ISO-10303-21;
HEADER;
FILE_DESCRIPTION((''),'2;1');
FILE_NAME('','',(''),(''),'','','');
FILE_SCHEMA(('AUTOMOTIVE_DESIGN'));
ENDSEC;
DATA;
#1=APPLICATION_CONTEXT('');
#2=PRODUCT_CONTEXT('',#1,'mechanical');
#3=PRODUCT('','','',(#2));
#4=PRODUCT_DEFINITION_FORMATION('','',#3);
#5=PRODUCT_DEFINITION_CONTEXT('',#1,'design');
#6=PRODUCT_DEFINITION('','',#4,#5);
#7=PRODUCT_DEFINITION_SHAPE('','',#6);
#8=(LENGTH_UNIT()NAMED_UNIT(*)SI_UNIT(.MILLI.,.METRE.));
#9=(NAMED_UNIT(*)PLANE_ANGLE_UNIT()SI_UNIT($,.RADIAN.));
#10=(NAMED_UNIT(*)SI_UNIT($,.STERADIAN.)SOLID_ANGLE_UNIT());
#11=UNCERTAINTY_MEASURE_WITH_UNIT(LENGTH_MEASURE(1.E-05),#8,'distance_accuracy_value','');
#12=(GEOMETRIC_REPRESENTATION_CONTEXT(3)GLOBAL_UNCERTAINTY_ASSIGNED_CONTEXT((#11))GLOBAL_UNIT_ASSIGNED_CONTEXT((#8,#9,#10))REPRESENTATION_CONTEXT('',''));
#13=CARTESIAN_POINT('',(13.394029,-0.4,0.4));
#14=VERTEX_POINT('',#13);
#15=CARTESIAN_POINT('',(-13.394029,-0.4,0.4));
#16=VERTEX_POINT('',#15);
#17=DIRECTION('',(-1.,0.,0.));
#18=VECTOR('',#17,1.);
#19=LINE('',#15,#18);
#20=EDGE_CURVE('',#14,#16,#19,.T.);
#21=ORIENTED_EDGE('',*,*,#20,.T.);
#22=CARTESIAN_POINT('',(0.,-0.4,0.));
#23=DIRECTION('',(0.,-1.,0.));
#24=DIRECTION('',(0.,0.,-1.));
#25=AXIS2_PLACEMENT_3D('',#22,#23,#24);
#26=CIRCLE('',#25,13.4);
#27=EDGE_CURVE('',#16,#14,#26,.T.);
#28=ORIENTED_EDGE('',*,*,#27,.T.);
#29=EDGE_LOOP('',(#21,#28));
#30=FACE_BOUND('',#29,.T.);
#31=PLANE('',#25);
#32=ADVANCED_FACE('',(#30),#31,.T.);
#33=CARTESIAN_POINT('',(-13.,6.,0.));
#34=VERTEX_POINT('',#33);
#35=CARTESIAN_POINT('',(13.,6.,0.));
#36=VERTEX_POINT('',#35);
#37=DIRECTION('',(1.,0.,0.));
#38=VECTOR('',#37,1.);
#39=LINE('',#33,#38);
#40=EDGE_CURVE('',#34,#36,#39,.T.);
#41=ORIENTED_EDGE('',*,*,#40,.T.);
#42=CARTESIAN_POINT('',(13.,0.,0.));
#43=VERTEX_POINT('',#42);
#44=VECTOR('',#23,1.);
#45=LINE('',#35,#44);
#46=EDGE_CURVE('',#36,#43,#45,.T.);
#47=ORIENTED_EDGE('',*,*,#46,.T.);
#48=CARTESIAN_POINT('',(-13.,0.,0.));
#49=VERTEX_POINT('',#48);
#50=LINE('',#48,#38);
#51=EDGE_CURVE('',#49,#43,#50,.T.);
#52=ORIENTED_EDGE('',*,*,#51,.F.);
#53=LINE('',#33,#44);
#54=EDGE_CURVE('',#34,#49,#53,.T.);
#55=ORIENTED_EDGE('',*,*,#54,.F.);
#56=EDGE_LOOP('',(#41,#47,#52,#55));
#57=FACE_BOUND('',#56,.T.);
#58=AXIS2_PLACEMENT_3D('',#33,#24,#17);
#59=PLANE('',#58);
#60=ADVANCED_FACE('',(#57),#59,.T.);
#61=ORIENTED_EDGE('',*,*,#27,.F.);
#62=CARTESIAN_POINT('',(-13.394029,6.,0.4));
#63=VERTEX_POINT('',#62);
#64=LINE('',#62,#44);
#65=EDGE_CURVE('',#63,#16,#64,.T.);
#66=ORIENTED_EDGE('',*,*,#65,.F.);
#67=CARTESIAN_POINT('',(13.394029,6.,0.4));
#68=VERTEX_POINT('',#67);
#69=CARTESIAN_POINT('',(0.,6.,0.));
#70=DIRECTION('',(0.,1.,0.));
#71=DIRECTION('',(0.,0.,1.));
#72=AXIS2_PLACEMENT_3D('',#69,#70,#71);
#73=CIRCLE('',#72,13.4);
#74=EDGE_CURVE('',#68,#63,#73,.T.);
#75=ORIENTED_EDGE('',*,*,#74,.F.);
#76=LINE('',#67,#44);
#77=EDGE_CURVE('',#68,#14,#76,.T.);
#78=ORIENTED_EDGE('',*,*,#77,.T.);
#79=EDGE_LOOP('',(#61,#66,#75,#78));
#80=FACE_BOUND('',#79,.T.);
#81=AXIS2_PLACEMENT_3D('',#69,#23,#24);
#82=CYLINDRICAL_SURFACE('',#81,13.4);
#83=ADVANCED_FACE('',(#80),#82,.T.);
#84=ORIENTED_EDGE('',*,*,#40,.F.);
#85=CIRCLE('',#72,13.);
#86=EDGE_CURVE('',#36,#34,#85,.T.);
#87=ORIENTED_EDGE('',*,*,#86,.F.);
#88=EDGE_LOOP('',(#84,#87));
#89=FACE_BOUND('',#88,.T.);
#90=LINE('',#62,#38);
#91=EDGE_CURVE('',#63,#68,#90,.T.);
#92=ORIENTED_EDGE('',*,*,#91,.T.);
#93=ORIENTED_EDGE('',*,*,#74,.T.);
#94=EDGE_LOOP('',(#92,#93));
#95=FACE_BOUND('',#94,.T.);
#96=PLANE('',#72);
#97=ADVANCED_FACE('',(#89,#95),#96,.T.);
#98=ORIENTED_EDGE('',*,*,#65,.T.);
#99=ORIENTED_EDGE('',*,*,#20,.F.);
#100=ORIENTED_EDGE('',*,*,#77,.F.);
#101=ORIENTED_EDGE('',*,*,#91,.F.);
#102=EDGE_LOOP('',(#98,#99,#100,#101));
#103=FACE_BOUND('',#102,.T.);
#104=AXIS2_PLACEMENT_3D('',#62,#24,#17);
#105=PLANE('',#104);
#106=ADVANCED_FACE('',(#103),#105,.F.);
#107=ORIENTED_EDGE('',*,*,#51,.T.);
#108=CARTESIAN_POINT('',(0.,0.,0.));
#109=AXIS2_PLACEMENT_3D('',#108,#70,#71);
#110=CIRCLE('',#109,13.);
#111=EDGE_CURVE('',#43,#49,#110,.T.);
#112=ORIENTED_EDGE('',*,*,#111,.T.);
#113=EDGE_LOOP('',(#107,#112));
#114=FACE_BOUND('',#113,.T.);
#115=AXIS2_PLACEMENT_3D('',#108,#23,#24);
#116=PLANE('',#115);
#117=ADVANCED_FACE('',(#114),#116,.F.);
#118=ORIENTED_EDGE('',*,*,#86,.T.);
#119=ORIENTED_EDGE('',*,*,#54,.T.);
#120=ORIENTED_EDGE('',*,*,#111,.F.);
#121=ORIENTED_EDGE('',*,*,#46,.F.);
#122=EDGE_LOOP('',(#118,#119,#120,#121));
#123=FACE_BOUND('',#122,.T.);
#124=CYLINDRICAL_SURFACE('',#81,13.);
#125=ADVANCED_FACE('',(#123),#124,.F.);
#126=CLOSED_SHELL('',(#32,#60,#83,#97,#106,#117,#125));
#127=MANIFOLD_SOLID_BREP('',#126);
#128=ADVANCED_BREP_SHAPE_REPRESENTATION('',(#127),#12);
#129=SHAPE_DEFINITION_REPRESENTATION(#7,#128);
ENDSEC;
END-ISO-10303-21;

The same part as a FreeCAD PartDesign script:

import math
import FreeCAD as App
import Part
import Sketcher
Q = App.Units.Quantity

doc = App.newDocument("Part")
body = doc.addObject("PartDesign::Body", "Body")

sketch1 = body.newObject("Sketcher::SketchObject", "Sketch")
sketch1.AttachmentSupport = (doc.getObject("XZ_Plane"), [""])
sketch1.MapMode = "FlatFace"
sketch1.addGeometry([
    Part.LineSegment(App.Vector(-13, 0, 0), App.Vector(13, 0, 0)),
    Part.ArcOfCircle(Part.Circle(App.Vector(0, 0, 0), App.Vector(0, 0, 1), 13), math.radians(178), math.radians(362)),
    Part.LineSegment(App.Vector(13, 0, 0), App.Vector(-13, 0, 0)),
    Part.ArcOfCircle(Part.Circle(App.Vector(0, 0, 0), App.Vector(0, 0, 1), 13), math.radians(180), math.radians(360)),
], False)
sketch1.addConstraint([
    Sketcher.Constraint("Coincident", 0, 1, 1, 1),
    Sketcher.Constraint("Coincident", 1, 2, 0, 2),
    Sketcher.Constraint("Coincident", 2, 1, 3, 2),
    Sketcher.Constraint("Coincident", 3, 1, 2, 2),
    Sketcher.Constraint("Horizontal", 0),
    Sketcher.Constraint("Horizontal", 2),
    Sketcher.Constraint("Coincident", 1, 3, -1, 1),
    Sketcher.Constraint("Coincident", 3, 3, -1, 1),
    Sketcher.Constraint("PointOnObject", 2, 1, -1),
    Sketcher.Constraint("Radius", 3, Q("13 mm")),
    Sketcher.Constraint("Radius", 1, Q("13.4 mm")),
    Sketcher.Constraint("DistanceY", -1, 1, 0, 1, Q("0.4 mm")),
])
pad1 = body.newObject("PartDesign::Pad", "Pad")
pad1.Profile = sketch1
pad1.Length = 6
pad1.Reversed = True

sketch2 = body.newObject("Sketcher::SketchObject", "Sketch001")
sketch2.AttachmentSupport = (doc.getObject("XZ_Plane"), [""])
sketch2.MapMode = "FlatFace"
sketch2.addGeometry([
    Part.LineSegment(App.Vector(13, 0, 0), App.Vector(-13, 0, 0)),
    Part.ArcOfCircle(Part.Circle(App.Vector(0, 0, 0), App.Vector(0, 0, 1), 13), math.radians(178), math.radians(362)),
], False)
sketch2.addConstraint([
    Sketcher.Constraint("Coincident", 0, 1, 1, 2),
    Sketcher.Constraint("Coincident", 1, 1, 0, 2),
    Sketcher.Constraint("Horizontal", 0),
    Sketcher.Constraint("Coincident", 1, 3, -1, 1),
    Sketcher.Constraint("Radius", 1, Q("13.4 mm")),
    Sketcher.Constraint("DistanceY", -1, 1, 0, 1, Q("0.4 mm")),
])
pad2 = body.newObject("PartDesign::Pad", "Pad001")
pad2.Profile = sketch2
pad2.Length = 0.4

doc.recompute()
